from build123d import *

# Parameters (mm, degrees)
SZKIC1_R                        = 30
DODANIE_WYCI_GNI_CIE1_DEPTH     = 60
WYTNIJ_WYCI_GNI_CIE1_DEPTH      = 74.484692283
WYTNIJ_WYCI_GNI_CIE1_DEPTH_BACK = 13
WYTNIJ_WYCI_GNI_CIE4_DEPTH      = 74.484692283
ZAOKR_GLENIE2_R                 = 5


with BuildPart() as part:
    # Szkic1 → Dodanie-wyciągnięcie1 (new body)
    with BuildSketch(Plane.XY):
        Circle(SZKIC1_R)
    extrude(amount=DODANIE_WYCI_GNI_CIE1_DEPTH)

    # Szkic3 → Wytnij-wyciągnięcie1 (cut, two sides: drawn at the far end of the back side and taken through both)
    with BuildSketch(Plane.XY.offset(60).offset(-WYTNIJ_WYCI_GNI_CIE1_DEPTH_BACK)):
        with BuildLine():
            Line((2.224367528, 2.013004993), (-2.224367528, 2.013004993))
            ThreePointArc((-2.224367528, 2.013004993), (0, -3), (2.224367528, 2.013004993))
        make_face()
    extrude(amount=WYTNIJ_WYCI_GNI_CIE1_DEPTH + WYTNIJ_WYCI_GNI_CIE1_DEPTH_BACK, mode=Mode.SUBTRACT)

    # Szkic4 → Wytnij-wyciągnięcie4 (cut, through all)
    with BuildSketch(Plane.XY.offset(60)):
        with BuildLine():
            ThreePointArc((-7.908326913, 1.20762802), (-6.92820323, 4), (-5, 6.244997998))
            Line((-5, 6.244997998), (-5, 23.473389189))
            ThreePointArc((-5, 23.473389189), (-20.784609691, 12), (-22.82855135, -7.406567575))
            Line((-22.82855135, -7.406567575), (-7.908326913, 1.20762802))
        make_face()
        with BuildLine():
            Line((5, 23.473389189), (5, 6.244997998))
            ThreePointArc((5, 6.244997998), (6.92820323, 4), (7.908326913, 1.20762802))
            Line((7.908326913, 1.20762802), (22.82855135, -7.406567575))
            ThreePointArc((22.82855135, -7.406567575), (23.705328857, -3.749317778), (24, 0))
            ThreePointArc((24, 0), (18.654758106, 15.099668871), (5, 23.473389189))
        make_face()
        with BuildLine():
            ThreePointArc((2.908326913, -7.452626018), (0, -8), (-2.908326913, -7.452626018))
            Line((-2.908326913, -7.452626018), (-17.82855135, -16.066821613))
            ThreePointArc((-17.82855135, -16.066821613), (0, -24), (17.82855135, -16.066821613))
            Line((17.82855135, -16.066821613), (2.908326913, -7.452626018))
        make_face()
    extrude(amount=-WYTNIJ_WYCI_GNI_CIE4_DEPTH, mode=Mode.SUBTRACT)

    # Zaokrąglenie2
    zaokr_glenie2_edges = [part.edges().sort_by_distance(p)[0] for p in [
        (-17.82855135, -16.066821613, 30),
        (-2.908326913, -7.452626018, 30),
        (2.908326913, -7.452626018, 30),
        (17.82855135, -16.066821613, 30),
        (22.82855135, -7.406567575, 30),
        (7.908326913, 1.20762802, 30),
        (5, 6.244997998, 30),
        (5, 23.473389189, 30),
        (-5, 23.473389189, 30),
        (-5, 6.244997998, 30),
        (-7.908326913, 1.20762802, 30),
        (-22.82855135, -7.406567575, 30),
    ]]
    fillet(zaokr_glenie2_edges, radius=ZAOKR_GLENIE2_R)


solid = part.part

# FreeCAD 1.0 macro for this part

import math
import FreeCAD as App
import Part
import Sketcher

V = App.Vector
Q = App.Units.Quantity


def edges_at(feature, points):
    """Names of the edges that pass closest to the given points."""
    edges = feature.Shape.Edges
    near = lambda p: min(range(len(edges)), key=lambda i: edges[i].distToShape(Part.Vertex(*p))[0])
    return sorted({f"Edge{near(p) + 1}" for p in points})

doc = App.newDocument("Part")
body = doc.addObject("PartDesign::Body", "Body")

sketch1 = doc.addObject("Sketcher::SketchObject", "Sketch")
body.addObject(sketch1)
sketch1.AttachmentSupport = (doc.XY_Plane, [""])
sketch1.MapMode = "FlatFace"
sketch1.addGeometry(Part.Circle(V(0, 0, 0), V(0, 0, 1), 30), False)
sketch1.addConstraint([
    Sketcher.Constraint("Coincident", 0, 3, -1, 1),
    Sketcher.Constraint("Diameter", 0, 60.0),
])
pad1 = doc.addObject("PartDesign::Pad", "Pad")
body.addObject(pad1)
pad1.Profile = sketch1
pad1.Length = 60

sketch2 = doc.addObject("Sketcher::SketchObject", "Sketch001")
body.addObject(sketch2)
sketch2.AttachmentSupport = (doc.XY_Plane, [""])
sketch2.MapMode = "FlatFace"
sketch2.AttachmentOffset = App.Placement(V(0, 0, 60), App.Rotation())
sketch2.addGeometry([
    Part.LineSegment(V(2.224368, 2.013005, 0), V(-2.224368, 2.013005, 0)),
    Part.ArcOfCircle(Part.Circle(V(0, 0, 0), V(0, 0, 1), 3), math.radians(137.855579), math.radians(402.144421)),
], False)
sketch2.addConstraint([
    Sketcher.Constraint("Coincident", 0, 1, 1, 2),
    Sketcher.Constraint("Coincident", 1, 1, 0, 2),
    Sketcher.Constraint("Horizontal", 0),
    Sketcher.Constraint("Coincident", 1, 3, -1, 1),
    Sketcher.Constraint("Radius", 1, 3.0),
    Sketcher.Constraint("DistanceX", 0, 2, 0, 1, 4.448735),
])
pocket1 = doc.addObject("PartDesign::Pocket", "Pocket")
body.addObject(pocket1)
pocket1.Profile = sketch2
pocket1.Type = "TwoLengths"
pocket1.Length = 74.484692
pocket1.Length2 = 13
pocket1.Reversed = True

sketch3 = doc.addObject("Sketcher::SketchObject", "Sketch002")
body.addObject(sketch3)
sketch3.AttachmentSupport = (doc.XY_Plane, [""])
sketch3.MapMode = "FlatFace"
sketch3.AttachmentOffset = App.Placement(V(0, 0, 60), App.Rotation())
sketch3.addGeometry([
    Part.ArcOfCircle(Part.Circle(V(0, 0, 0), V(0, 0, 1), 8), math.radians(128.682187), math.radians(171.317813)),
    Part.LineSegment(V(-5, 6.244998, 0), V(-5, 23.473389, 0)),
    Part.ArcOfCircle(Part.Circle(V(0, 0, 0), V(0, 0, 1), 24), math.radians(102.024699), math.radians(197.975301)),
    Part.LineSegment(V(-22.828551, -7.406568, 0), V(-7.908327, 1.207628, 0)),
    Part.LineSegment(V(5, 23.473389, 0), V(5, 6.244998, 0)),
    Part.ArcOfCircle(Part.Circle(V(0, 0, 0), V(0, 0, 1), 8), math.radians(8.682187), math.radians(51.317813)),
    Part.LineSegment(V(7.908327, 1.207628, 0), V(22.828551, -7.406568, 0)),
    Part.ArcOfCircle(Part.Circle(V(0, 0, 0), V(0, 0, 1), 24), math.radians(-17.975301), math.radians(0)),
    Part.ArcOfCircle(Part.Circle(V(0, 0, 0), V(0, 0, 1), 24), math.radians(0), math.radians(77.975301)),
    Part.ArcOfCircle(Part.Circle(V(0, 0, 0), V(0, 0, 1), 8), math.radians(-111.317813), math.radians(-68.682187)),
    Part.LineSegment(V(-2.908327, -7.452626, 0), V(-17.828551, -16.066822, 0)),
    Part.ArcOfCircle(Part.Circle(V(0, 0, 0), V(0, 0, 1), 24), math.radians(-137.975301), math.radians(-42.024699)),
    Part.LineSegment(V(17.828551, -16.066822, 0), V(2.908327, -7.452626, 0)),
], False)
sketch3.addConstraint([
    Sketcher.Constraint("Coincident", 0, 1, 1, 1),
    Sketcher.Constraint("Coincident", 1, 2, 2, 1),
    Sketcher.Constraint("Coincident", 2, 2, 3, 1),
    Sketcher.Constraint("Coincident", 3, 2, 0, 2),
    Sketcher.Constraint("Coincident", 4, 2, 5, 2),
    Sketcher.Constraint("Coincident", 5, 1, 6, 1),
    Sketcher.Constraint("Coincident", 6, 2, 7, 1),
    Sketcher.Constraint("Tangent", 7, 2, 8, 1),
    Sketcher.Constraint("Coincident", 8, 2, 4, 1),
    Sketcher.Constraint("Coincident", 9, 1, 10, 1),
    Sketcher.Constraint("Coincident", 10, 2, 11, 1),
    Sketcher.Constraint("Coincident", 11, 2, 12, 1),
    Sketcher.Constraint("Coincident", 12, 2, 9, 2),
    Sketcher.Constraint("Vertical", 1),
    Sketcher.Constraint("Vertical", 4),
    Sketcher.Constraint("Coincident", 0, 3, -1, 1),
    Sketcher.Constraint("Coincident", 2, 3, -1, 1),
    Sketcher.Constraint("Coincident", 5, 3, -1, 1),
    Sketcher.Constraint("Coincident", 7, 3, -1, 1),
    Sketcher.Constraint("Coincident", 9, 3, -1, 1),
    Sketcher.Constraint("Coincident", 11, 3, -1, 1),
    Sketcher.Constraint("Equal", 0, 5),
    Sketcher.Constraint("Equal", 2, 7),
    Sketcher.Constraint("Equal", 7, 8),
    Sketcher.Constraint("Equal", 5, 9),
    Sketcher.Constraint("Equal", 8, 11),
    Sketcher.Constraint("PointOnObject", 7, 2, -1),
    Sketcher.Constraint("Parallel", 3, 10),
    Sketcher.Constraint("Parallel", 6, 12),
    Sketcher.Constraint("Horizontal", 0, 1, 4, 2),
    Sketcher.Constraint("Horizontal", 3, 2, 5, 1),
    Sketcher.Constraint("Horizontal", 2, 2, 6, 2),
    Sketcher.Constraint("Horizontal", 10, 2, 11, 2),
    Sketcher.Constraint("Equal", 6, 10),
    Sketcher.Constraint("Radius", 0, 8.0),
    Sketcher.Constraint("Radius", 2, 24.0),
    Sketcher.Constraint("Angle", 3, Q("30 deg")),
    Sketcher.Constraint("DistanceX", 0, 1, -1, 1, 5.0),
    Sketcher.Constraint("DistanceX", 2, 2, 10, 2, 5.0),
])
pocket2 = doc.addObject("PartDesign::Pocket", "Pocket001")
body.addObject(pocket2)
pocket2.Profile = sketch3
pocket2.Type = "ThroughAll"
doc.recompute()

fillet = doc.addObject("PartDesign::Fillet", "Fillet")
body.addObject(fillet)
fillet.Base = (pocket2, edges_at(pocket2, [
    (-17.829, -16.067, 30),
    (-2.908, -7.453, 30),
    (2.908, -7.453, 30),
    (17.829, -16.067, 30),
    (22.829, -7.407, 30),
    (7.908, 1.208, 30),
    (5, 6.245, 30),
    (5, 23.473, 30),
    (-5, 23.473, 30),
    (-5, 6.245, 30),
    (-7.908, 1.208, 30),
    (-22.829, -7.407, 30),
]))
fillet.Radius = 5

doc.recompute()
